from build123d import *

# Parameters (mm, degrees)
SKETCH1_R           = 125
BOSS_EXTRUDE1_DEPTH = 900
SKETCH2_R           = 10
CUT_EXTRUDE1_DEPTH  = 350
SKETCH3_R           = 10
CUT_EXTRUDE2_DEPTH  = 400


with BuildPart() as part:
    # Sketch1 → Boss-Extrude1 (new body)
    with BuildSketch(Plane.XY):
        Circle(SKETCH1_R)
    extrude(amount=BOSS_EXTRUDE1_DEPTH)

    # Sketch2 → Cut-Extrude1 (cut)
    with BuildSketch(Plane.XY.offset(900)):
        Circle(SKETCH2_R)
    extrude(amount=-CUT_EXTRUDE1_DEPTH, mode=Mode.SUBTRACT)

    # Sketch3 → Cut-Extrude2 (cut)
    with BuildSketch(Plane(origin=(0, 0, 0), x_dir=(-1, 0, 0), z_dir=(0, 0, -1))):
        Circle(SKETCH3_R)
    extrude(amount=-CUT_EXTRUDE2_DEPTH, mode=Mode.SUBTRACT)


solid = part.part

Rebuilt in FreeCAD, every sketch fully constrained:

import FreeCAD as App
import Part
import Sketcher

V = App.Vector
Q = App.Units.Quantity

doc = App.newDocument("Part")
body = doc.addObject("PartDesign::Body", "Body")

# Sketch on XY plane
sketch1 = body.newObject("Sketcher::SketchObject", "Sketch")
sketch1.AttachmentSupport = (doc.getObject("XY_Plane"), [""])
sketch1.MapMode = "FlatFace"
sketch1.addGeometry(Part.Circle(V(0, 0, 0), V(0, 0, 1), 125), False)
sketch1.addConstraint([
    Sketcher.Constraint("Coincident", 0, 3, -1, 1),
    Sketcher.Constraint("Diameter", 0, Q("250 mm")),
])
pad1 = body.newObject("PartDesign::Pad", "Pad")
pad1.Profile = sketch1
pad1.Length = 900

# Sketch on XY plane
sketch2 = body.newObject("Sketcher::SketchObject", "Sketch001")
sketch2.AttachmentSupport = (doc.getObject("XY_Plane"), [""])
sketch2.MapMode = "FlatFace"
sketch2.AttachmentOffset = App.Placement(V(0, 0, 900), App.Rotation())
sketch2.addGeometry(Part.Circle(V(0, 0, 0), V(0, 0, 1), 10), False)
sketch2.addConstraint([
    Sketcher.Constraint("Coincident", 0, 3, -1, 1),
    Sketcher.Constraint("Diameter", 0, Q("20 mm")),
])
pocket1 = body.newObject("PartDesign::Pocket", "Pocket")
pocket1.Profile = sketch2
pocket1.Length = 350

# Sketch on XY plane
sketch3 = body.newObject("Sketcher::SketchObject", "Sketch002")
sketch3.AttachmentSupport = (doc.getObject("XY_Plane"), [""])
sketch3.MapMode = "FlatFace"
sketch3.addGeometry(Part.Circle(V(0, 0, 0), V(0, 0, 1), 10), False)
sketch3.addConstraint([
    Sketcher.Constraint("Coincident", 0, 3, -1, 1),
    Sketcher.Constraint("Diameter", 0, Q("20 mm")),
])
pocket2 = body.newObject("PartDesign::Pocket", "Pocket001")
pocket2.Profile = sketch3
pocket2.Length = 400
pocket2.Reversed = True

doc.recompute()
